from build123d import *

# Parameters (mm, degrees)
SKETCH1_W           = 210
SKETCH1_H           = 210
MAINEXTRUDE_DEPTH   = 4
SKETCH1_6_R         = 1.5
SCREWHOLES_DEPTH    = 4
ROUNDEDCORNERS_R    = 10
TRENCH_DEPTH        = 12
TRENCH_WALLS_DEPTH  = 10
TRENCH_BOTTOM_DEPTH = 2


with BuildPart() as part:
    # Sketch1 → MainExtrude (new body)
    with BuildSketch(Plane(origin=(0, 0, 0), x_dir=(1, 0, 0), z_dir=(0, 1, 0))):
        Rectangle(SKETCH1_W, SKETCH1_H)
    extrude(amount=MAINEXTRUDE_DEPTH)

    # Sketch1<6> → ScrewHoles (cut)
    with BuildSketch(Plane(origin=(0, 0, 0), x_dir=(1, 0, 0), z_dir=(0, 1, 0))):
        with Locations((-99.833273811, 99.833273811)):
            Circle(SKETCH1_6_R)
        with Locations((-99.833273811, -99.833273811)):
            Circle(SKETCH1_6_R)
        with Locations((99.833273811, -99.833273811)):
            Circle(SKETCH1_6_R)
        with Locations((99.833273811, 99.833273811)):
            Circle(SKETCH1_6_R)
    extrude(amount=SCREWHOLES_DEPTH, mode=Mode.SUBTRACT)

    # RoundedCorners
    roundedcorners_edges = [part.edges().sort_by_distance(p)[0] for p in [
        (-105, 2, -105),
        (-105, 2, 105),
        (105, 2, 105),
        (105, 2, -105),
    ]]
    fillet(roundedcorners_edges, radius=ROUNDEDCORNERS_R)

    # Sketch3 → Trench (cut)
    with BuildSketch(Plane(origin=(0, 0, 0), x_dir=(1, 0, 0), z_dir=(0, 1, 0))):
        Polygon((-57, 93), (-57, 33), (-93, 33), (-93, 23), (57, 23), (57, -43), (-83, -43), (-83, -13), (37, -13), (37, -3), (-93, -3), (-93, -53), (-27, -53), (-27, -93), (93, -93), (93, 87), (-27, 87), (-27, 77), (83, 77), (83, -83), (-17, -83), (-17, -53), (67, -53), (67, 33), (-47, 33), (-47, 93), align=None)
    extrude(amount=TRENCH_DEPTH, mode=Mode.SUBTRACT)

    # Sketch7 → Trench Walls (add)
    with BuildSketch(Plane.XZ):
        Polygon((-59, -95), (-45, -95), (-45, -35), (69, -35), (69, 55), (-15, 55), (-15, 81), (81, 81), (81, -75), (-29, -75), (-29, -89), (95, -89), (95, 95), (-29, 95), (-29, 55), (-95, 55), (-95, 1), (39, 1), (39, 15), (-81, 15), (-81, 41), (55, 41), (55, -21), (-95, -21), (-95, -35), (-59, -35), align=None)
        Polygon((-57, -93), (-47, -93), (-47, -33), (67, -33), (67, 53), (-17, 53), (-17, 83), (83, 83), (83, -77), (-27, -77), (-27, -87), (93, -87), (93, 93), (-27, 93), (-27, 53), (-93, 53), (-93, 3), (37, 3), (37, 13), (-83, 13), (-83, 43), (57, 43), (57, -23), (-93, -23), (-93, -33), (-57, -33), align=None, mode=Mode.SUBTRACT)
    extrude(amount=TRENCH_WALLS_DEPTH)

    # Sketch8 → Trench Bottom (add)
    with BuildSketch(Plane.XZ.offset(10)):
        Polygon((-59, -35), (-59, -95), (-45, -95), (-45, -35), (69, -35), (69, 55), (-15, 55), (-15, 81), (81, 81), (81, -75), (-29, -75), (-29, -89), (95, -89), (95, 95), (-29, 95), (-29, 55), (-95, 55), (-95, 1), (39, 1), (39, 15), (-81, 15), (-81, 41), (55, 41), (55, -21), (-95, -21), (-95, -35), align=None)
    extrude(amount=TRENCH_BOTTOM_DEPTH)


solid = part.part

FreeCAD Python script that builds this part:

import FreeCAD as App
import Part
import Sketcher

V = App.Vector
Q = App.Units.Quantity


def edges_at(feature, points):
    """Names of the edges that pass closest to the given points."""
    edges = feature.Shape.Edges
    near = lambda p: min(range(len(edges)), key=lambda i: edges[i].distToShape(Part.Vertex(*p))[0])
    return sorted({f"Edge{near(p) + 1}" for p in points})


def add_polygon(sketch, points):
    """Adds a closed chain of lines whose ends are joined by coincident constraints."""
    first, n = sketch.GeometryCount, len(points)
    for a, b in zip(points, points[1:] + points[:1]):
        sketch.addGeometry(Part.LineSegment(App.Vector(*a, 0), App.Vector(*b, 0)), False)
    for i in range(n):
        sketch.addConstraint(Sketcher.Constraint("Coincident", first + i, 2, first + (i + 1) % n, 1))

doc = App.newDocument("Part")
body = doc.addObject("PartDesign::Body", "Body")

# Sketch on XZ plane
sketch1 = body.newObject("Sketcher::SketchObject", "Sketch")
sketch1.AttachmentSupport = (doc.getObject("XZ_Plane"), [""])
sketch1.MapMode = "FlatFace"
add_polygon(sketch1, [(-105, -105), (-105, 105), (105, 105), (105, -105)])  # lines 0-3
sketch1.addConstraint(Sketcher.Constraint("Vertical", 0))
sketch1.addConstraint(Sketcher.Constraint("Horizontal", 1))
sketch1.addConstraint(Sketcher.Constraint("Vertical", 2))
sketch1.addConstraint(Sketcher.Constraint("Horizontal", 3))
sketch1.addConstraint(Sketcher.Constraint("Symmetric", 0, 2, 2, 2, -1, 1))
sketch1.addConstraint(Sketcher.Constraint("Equal", 3, 0))
sketch1.addConstraint(Sketcher.Constraint("DistanceX", 1, 1, 1, 2, Q("210 mm")))
pad1 = body.newObject("PartDesign::Pad", "Pad")
pad1.Profile = sketch1
pad1.Length = 4
pad1.Reversed = True

# Sketch on XZ plane
sketch2 = body.newObject("Sketcher::SketchObject", "Sketch001")
sketch2.AttachmentSupport = (doc.getObject("XZ_Plane"), [""])
sketch2.MapMode = "FlatFace"
sketch2.addGeometry(Part.Circle(V(-99.833274, -99.833274, 0), V(0, 0, 1), 1.5), False)
sketch2.addGeometry(Part.Circle(V(-99.833274, 99.833274, 0), V(0, 0, 1), 1.5), False)
sketch2.addGeometry(Part.Circle(V(99.833274, 99.833274, 0), V(0, 0, 1), 1.5), False)
sketch2.addGeometry(Part.Circle(V(99.833274, -99.833274, 0), V(0, 0, 1), 1.5), False)
sketch2.addConstraint(Sketcher.Constraint("Equal", 0, 1))
sketch2.addConstraint(Sketcher.Constraint("Equal", 1, 2))
sketch2.addConstraint(Sketcher.Constraint("Equal", 2, 3))
sketch2.addConstraint(Sketcher.Constraint("Symmetric", 0, 3, 2, 3, -1, 1))
sketch2.addConstraint(Sketcher.Constraint("Symmetric", 1, 3, 3, 3, -1, 1))
sketch2.addConstraint(Sketcher.Constraint("Symmetric", 1, 3, 2, 3, -2))
sketch2.addConstraint(Sketcher.Constraint("Diameter", 0, Q("3 mm")))
sketch2.addConstraint(Sketcher.Constraint("DistanceX", 0, 3, -1, 1, Q("99.833274 mm")))
sketch2.addConstraint(Sketcher.Constraint("DistanceY", 0, 3, -1, 1, Q("99.833274 mm")))
pocket1 = body.newObject("PartDesign::Pocket", "Pocket")
pocket1.Profile = sketch2
pocket1.Length = 4
doc.recompute()

fillet = body.newObject("PartDesign::Fillet", "Fillet")
fillet.Base = (pocket1, edges_at(pocket1, [
    (-105, 2, -105),
    (-105, 2, 105),
    (105, 2, 105),
    (105, 2, -105),
]))
fillet.Radius = 10

# Sketch on XZ plane
sketch3 = body.newObject("Sketcher::SketchObject", "Sketch002")
sketch3.AttachmentSupport = (doc.getObject("XZ_Plane"), [""])
sketch3.MapMode = "FlatFace"
add_polygon(sketch3, [(-57, -93), (-57, -33), (-93, -33), (-93, -23), (57, -23), (57, 43), (-83, 43), (-83, 13), (37, 13), (37, 3), (-93, 3), (-93, 53), (-27, 53), (-27, 93), (93, 93), (93, -87), (-27, -87), (-27, -77), (83, -77), (83, 83), (-17, 83), (-17, 53), (67, 53), (67, -33), (-47, -33), (-47, -93)])  # lines 0-25
sketch3.addConstraint(Sketcher.Constraint("Vertical", 0))
sketch3.addConstraint(Sketcher.Constraint("Horizontal", 1))
sketch3.addConstraint(Sketcher.Constraint("Vertical", 2))
sketch3.addConstraint(Sketcher.Constraint("Horizontal", 3))
sketch3.addConstraint(Sketcher.Constraint("Vertical", 4))
sketch3.addConstraint(Sketcher.Constraint("Horizontal", 5))
sketch3.addConstraint(Sketcher.Constraint("Vertical", 6))
sketch3.addConstraint(Sketcher.Constraint("Horizontal", 7))
sketch3.addConstraint(Sketcher.Constraint("Vertical", 8))
sketch3.addConstraint(Sketcher.Constraint("Horizontal", 9))
sketch3.addConstraint(Sketcher.Constraint("Vertical", 10))
sketch3.addConstraint(Sketcher.Constraint("Horizontal", 11))
sketch3.addConstraint(Sketcher.Constraint("Vertical", 12))
sketch3.addConstraint(Sketcher.Constraint("Horizontal", 13))
sketch3.addConstraint(Sketcher.Constraint("Vertical", 14))
sketch3.addConstraint(Sketcher.Constraint("Horizontal", 15))
sketch3.addConstraint(Sketcher.Constraint("Vertical", 16))
sketch3.addConstraint(Sketcher.Constraint("Horizontal", 17))
sketch3.addConstraint(Sketcher.Constraint("Vertical", 18))
sketch3.addConstraint(Sketcher.Constraint("Horizontal", 19))
sketch3.addConstraint(Sketcher.Constraint("Vertical", 20))
sketch3.addConstraint(Sketcher.Constraint("Horizontal", 21))
sketch3.addConstraint(Sketcher.Constraint("Vertical", 22))
sketch3.addConstraint(Sketcher.Constraint("Horizontal", 23))
sketch3.addConstraint(Sketcher.Constraint("Vertical", 24))
sketch3.addConstraint(Sketcher.Constraint("Horizontal", 25))
sketch3.addConstraint(Sketcher.Constraint("Horizontal", 11, 2, 20, 2))
sketch3.addConstraint(Sketcher.Constraint("Horizontal", 1, 2, 22, 2))
sketch3.addConstraint(Sketcher.Constraint("Vertical", 2, 2, 9, 2))
sketch3.addConstraint(Sketcher.Constraint("Vertical", 12, 2, 15, 2))
sketch3.addConstraint(Sketcher.Constraint("Equal", 7, 13))
sketch3.addConstraint(Sketcher.Constraint("Equal", 25, 2))
sketch3.addConstraint(Sketcher.Constraint("Equal", 11, 4))
sketch3.addConstraint(Sketcher.Constraint("Equal", 2, 8))
sketch3.addConstraint(Sketcher.Constraint("Equal", 8, 16))
sketch3.addConstraint(Sketcher.Constraint("Equal", 6, 20))
sketch3.addConstraint(Sketcher.Constraint("DistanceX", 1, 2, 1, 1, Q("36 mm")))
sketch3.addConstraint(Sketcher.Constraint("DistanceX", 3, 1, 3, 2, Q("150 mm")))
sketch3.addConstraint(Sketcher.Constraint("DistanceX", 5, 2, 5, 1, Q("140 mm")))
sketch3.addConstraint(Sketcher.Constraint("DistanceX", 7, 1, 7, 2, Q("120 mm")))
sketch3.addConstraint(Sketcher.Constraint("DistanceX", 11, 1, 11, 2, Q("66 mm")))
sketch3.addConstraint(Sketcher.Constraint("DistanceX", 17, 1, 17, 2, Q("110 mm")))
sketch3.addConstraint(Sketcher.Constraint("DistanceX", 19, 2, 19, 1, Q("100 mm")))
sketch3.addConstraint(Sketcher.Constraint("DistanceX", 21, 1, 21, 2, Q("84 mm")))
sketch3.addConstraint(Sketcher.Constraint("DistanceX", 23, 2, 23, 1, Q("114 mm")))
sketch3.addConstraint(Sketcher.Constraint("DistanceY", 0, 1, 0, 2, Q("60 mm")))
sketch3.addConstraint(Sketcher.Constraint("DistanceY", 6, 2, 6, 1, Q("30 mm")))
sketch3.addConstraint(Sketcher.Constraint("DistanceY", 10, 1, 10, 2, Q("50 mm")))
sketch3.addConstraint(Sketcher.Constraint("DistanceY", 12, 1, 12, 2, Q("40 mm")))
sketch3.addConstraint(Sketcher.Constraint("DistanceY", 14, 2, 14, 1, Q("180 mm")))
sketch3.addConstraint(Sketcher.Constraint("DistanceX", 0, 2, -1, 1, Q("57 mm")))
sketch3.addConstraint(Sketcher.Constraint("DistanceY", 0, 2, -1, 1, Q("33 mm")))
pocket2 = body.newObject("PartDesign::Pocket", "Pocket001")
pocket2.Profile = sketch3
pocket2.Length = 12

# Sketch on XZ plane
sketch4 = body.newObject("Sketcher::SketchObject", "Sketch003")
sketch4.AttachmentSupport = (doc.getObject("XZ_Plane"), [""])
sketch4.MapMode = "FlatFace"
add_polygon(sketch4, [(-59, -95), (-45, -95), (-45, -35), (69, -35), (69, 55), (-15, 55), (-15, 81), (81, 81), (81, -75), (-29, -75), (-29, -89), (95, -89), (95, 95), (-29, 95), (-29, 55), (-95, 55), (-95, 1), (39, 1), (39, 15), (-81, 15), (-81, 41), (55, 41), (55, -21), (-95, -21), (-95, -35), (-59, -35)])  # lines 0-25
add_polygon(sketch4, [(-47, -93), (-57, -93), (-57, -33), (-93, -33), (-93, -23), (57, -23), (57, 43), (-83, 43), (-83, 13), (37, 13), (37, 3), (-93, 3), (-93, 53), (-27, 53), (-27, 93), (93, 93), (93, -87), (-27, -87), (-27, -77), (83, -77), (83, 83), (-17, 83), (-17, 53), (67, 53), (67, -33), (-47, -33)])  # lines 26-51
sketch4.addConstraint(Sketcher.Constraint("Horizontal", 0))
sketch4.addConstraint(Sketcher.Constraint("Vertical", 1))
sketch4.addConstraint(Sketcher.Constraint("Horizontal", 2))
sketch4.addConstraint(Sketcher.Constraint("Vertical", 3))
sketch4.addConstraint(Sketcher.Constraint("Horizontal", 4))
sketch4.addConstraint(Sketcher.Constraint("Vertical", 5))
sketch4.addConstraint(Sketcher.Constraint("Horizontal", 6))
sketch4.addConstraint(Sketcher.Constraint("Vertical", 7))
sketch4.addConstraint(Sketcher.Constraint("Horizontal", 8))
sketch4.addConstraint(Sketcher.Constraint("Vertical", 9))
sketch4.addConstraint(Sketcher.Constraint("Horizontal", 10))
sketch4.addConstraint(Sketcher.Constraint("Vertical", 11))
sketch4.addConstraint(Sketcher.Constraint("Horizontal", 12))
sketch4.addConstraint(Sketcher.Constraint("Vertical", 13))
sketch4.addConstraint(Sketcher.Constraint("Horizontal", 14))
sketch4.addConstraint(Sketcher.Constraint("Vertical", 15))
sketch4.addConstraint(Sketcher.Constraint("Horizontal", 16))
sketch4.addConstraint(Sketcher.Constraint("Vertical", 17))
sketch4.addConstraint(Sketcher.Constraint("Horizontal", 18))
sketch4.addConstraint(Sketcher.Constraint("Vertical", 19))
sketch4.addConstraint(Sketcher.Constraint("Horizontal", 20))
sketch4.addConstraint(Sketcher.Constraint("Vertical", 21))
sketch4.addConstraint(Sketcher.Constraint("Horizontal", 22))
sketch4.addConstraint(Sketcher.Constraint("Vertical", 23))
sketch4.addConstraint(Sketcher.Constraint("Horizontal", 24))
sketch4.addConstraint(Sketcher.Constraint("Vertical", 25))
sketch4.addConstraint(Sketcher.Constraint("Horizontal", 26))
sketch4.addConstraint(Sketcher.Constraint("Vertical", 27))
sketch4.addConstraint(Sketcher.Constraint("Horizontal", 28))
sketch4.addConstraint(Sketcher.Constraint("Vertical", 29))
sketch4.addConstraint(Sketcher.Constraint("Horizontal", 30))
sketch4.addConstraint(Sketcher.Constraint("Vertical", 31))
sketch4.addConstraint(Sketcher.Constraint("Horizontal", 32))
sketch4.addConstraint(Sketcher.Constraint("Vertical", 33))
sketch4.addConstraint(Sketcher.Constraint("Horizontal", 34))
sketch4.addConstraint(Sketcher.Constraint("Vertical", 35))
sketch4.addConstraint(Sketcher.Constraint("Horizontal", 36))
sketch4.addConstraint(Sketcher.Constraint("Vertical", 37))
sketch4.addConstraint(Sketcher.Constraint("Horizontal", 38))
sketch4.addConstraint(Sketcher.Constraint("Vertical", 39))
sketch4.addConstraint(Sketcher.Constraint("Horizontal", 40))
sketch4.addConstraint(Sketcher.Constraint("Vertical", 41))
sketch4.addConstraint(Sketcher.Constraint("Horizontal", 42))
sketch4.addConstraint(Sketcher.Constraint("Vertical", 43))
sketch4.addConstraint(Sketcher.Constraint("Horizontal", 44))
sketch4.addConstraint(Sketcher.Constraint("Vertical", 45))
sketch4.addConstraint(Sketcher.Constraint("Horizontal", 46))
sketch4.addConstraint(Sketcher.Constraint("Vertical", 47))
sketch4.addConstraint(Sketcher.Constraint("Horizontal", 48))
sketch4.addConstraint(Sketcher.Constraint("Vertical", 49))
sketch4.addConstraint(Sketcher.Constraint("Horizontal", 50))
sketch4.addConstraint(Sketcher.Constraint("Vertical", 51))
sketch4.addConstraint(Sketcher.Constraint("Horizontal", 4, 2, 13, 2))
sketch4.addConstraint(Sketcher.Constraint("Horizontal", 2, 2, 23, 2))
sketch4.addConstraint(Sketcher.Constraint("Horizontal", 38, 2, 47, 2))
sketch4.addConstraint(Sketcher.Constraint("Horizontal", 28, 2, 49, 2))
sketch4.addConstraint(Sketcher.Constraint("Vertical", 9, 2, 12, 2))
sketch4.addConstraint(Sketcher.Constraint("Vertical", 15, 2, 22, 2))
sketch4.addConstraint(Sketcher.Constraint("Vertical", 29, 2, 36, 2))
sketch4.addConstraint(Sketcher.Constraint("Vertical", 39, 2, 42, 2))
sketch4.addConstraint(Sketcher.Constraint("Equal", 24, 28))
sketch4.addConstraint(Sketcher.Constraint("Equal", 22, 30))
sketch4.addConstraint(Sketcher.Constraint("Equal", 18, 34))
sketch4.addConstraint(Sketcher.Constraint("Equal", 14, 38))
sketch4.addConstraint(Sketcher.Constraint("Equal", 34, 40))
sketch4.addConstraint(Sketcher.Constraint("Equal", 8, 44))
sketch4.addConstraint(Sketcher.Constraint("Equal", 4, 48))
sketch4.addConstraint(Sketcher.Constraint("Equal", 2, 50))
sketch4.addConstraint(Sketcher.Constraint("Equal", 0, 9))
sketch4.addConstraint(Sketcher.Constraint("Equal", 9, 17))
sketch4.addConstraint(Sketcher.Constraint("Equal", 5, 19))
sketch4.addConstraint(Sketcher.Constraint("Equal", 17, 23))
sketch4.addConstraint(Sketcher.Constraint("Equal", 25, 27))
sketch4.addConstraint(Sketcher.Constraint("Equal", 26, 29))
sketch4.addConstraint(Sketcher.Constraint("Equal", 38, 31))
sketch4.addConstraint(Sketcher.Constraint("Equal", 29, 35))
sketch4.addConstraint(Sketcher.Constraint("Equal", 13, 39))
sketch4.addConstraint(Sketcher.Constraint("Equal", 35, 43))
sketch4.addConstraint(Sketcher.Constraint("Equal", 33, 47))
sketch4.addConstraint(Sketcher.Constraint("DistanceX", 0, 1, 0, 2, Q("14 mm")))
sketch4.addConstraint(Sketcher.Constraint("DistanceX", 2, 1, 2, 2, Q("114 mm")))
sketch4.addConstraint(Sketcher.Constraint("DistanceX", 4, 2, 4, 1, Q("84 mm")))
sketch4.addConstraint(Sketcher.Constraint("DistanceX", 6, 1, 6, 2, Q("96 mm")))
sketch4.addConstraint(Sketcher.Constraint("DistanceX", 8, 2, 8, 1, Q("110 mm")))
sketch4.addConstraint(Sketcher.Constraint("DistanceX", 10, 1, 10, 2, Q("124 mm")))
sketch4.addConstraint(Sketcher.Constraint("DistanceX", 14, 2, 14, 1, Q("66 mm")))
sketch4.addConstraint(Sketcher.Constraint("DistanceX", 16, 1, 16, 2, Q("134 mm")))
sketch4.addConstraint(Sketcher.Constraint("DistanceX", 18, 2, 18, 1, Q("120 mm")))
sketch4.addConstraint(Sketcher.Constraint("DistanceX", 20, 1, 20, 2, Q("136 mm")))
sketch4.addConstraint(Sketcher.Constraint("DistanceX", 26, 2, 26, 1, Q("10 mm")))
sketch4.addConstraint(Sketcher.Constraint("DistanceX", 32, 2, 32, 1, Q("140 mm")))
sketch4.addConstraint(Sketcher.Constraint("DistanceY", 1, 1, 1, 2, Q("60 mm")))
sketch4.addConstraint(Sketcher.Constraint("DistanceY", 3, 1, 3, 2, Q("90 mm")))
sketch4.addConstraint(Sketcher.Constraint("DistanceY", 5, 1, 5, 2, Q("26 mm")))
sketch4.addConstraint(Sketcher.Constraint("DistanceY", 7, 2, 7, 1, Q("156 mm")))
sketch4.addConstraint(Sketcher.Constraint("DistanceY", 11, 1, 11, 2, Q("184 mm")))
sketch4.addConstraint(Sketcher.Constraint("DistanceY", 15, 2, 15, 1, Q("54 mm")))
sketch4.addConstraint(Sketcher.Constraint("DistanceY", 33, 2, 33, 1, Q("30 mm")))
sketch4.addConstraint(Sketcher.Constraint("DistanceY", 37, 1, 37, 2, Q("50 mm")))
sketch4.addConstraint(Sketcher.Constraint("DistanceY", 41, 2, 41, 1, Q("180 mm")))
sketch4.addConstraint(Sketcher.Constraint("DistanceX", 0, 2, -1, 1, Q("45 mm")))
sketch4.addConstraint(Sketcher.Constraint("DistanceY", 0, 2, -1, 1, Q("95 mm")))
sketch4.addConstraint(Sketcher.Constraint("DistanceX", 26, 2, -1, 1, Q("57 mm")))
sketch4.addConstraint(Sketcher.Constraint("DistanceY", 26, 2, -1, 1, Q("93 mm")))
pad2 = body.newObject("PartDesign::Pad", "Pad001")
pad2.Profile = sketch4
pad2.Length = 10

# Sketch on XZ plane
sketch5 = body.newObject("Sketcher::SketchObject", "Sketch004")
sketch5.AttachmentSupport = (doc.getObject("XZ_Plane"), [""])
sketch5.MapMode = "FlatFace"
sketch5.AttachmentOffset = App.Placement(V(0, 0, 10), App.Rotation())
add_polygon(sketch5, [(-59, -35), (-59, -95), (-45, -95), (-45, -35), (69, -35), (69, 55), (-15, 55), (-15, 81), (81, 81), (81, -75), (-29, -75), (-29, -89), (95, -89), (95, 95), (-29, 95), (-29, 55), (-95, 55), (-95, 1), (39, 1), (39, 15), (-81, 15), (-81, 41), (55, 41), (55, -21), (-95, -21), (-95, -35)])  # lines 0-25
sketch5.addConstraint(Sketcher.Constraint("Vertical", 0))
sketch5.addConstraint(Sketcher.Constraint("Horizontal", 1))
sketch5.addConstraint(Sketcher.Constraint("Vertical", 2))
sketch5.addConstraint(Sketcher.Constraint("Horizontal", 3))
sketch5.addConstraint(Sketcher.Constraint("Vertical", 4))
sketch5.addConstraint(Sketcher.Constraint("Horizontal", 5))
sketch5.addConstraint(Sketcher.Constraint("Vertical", 6))
sketch5.addConstraint(Sketcher.Constraint("Horizontal", 7))
sketch5.addConstraint(Sketcher.Constraint("Vertical", 8))
sketch5.addConstraint(Sketcher.Constraint("Horizontal", 9))
sketch5.addConstraint(Sketcher.Constraint("Vertical", 10))
sketch5.addConstraint(Sketcher.Constraint("Horizontal", 11))
sketch5.addConstraint(Sketcher.Constraint("Vertical", 12))
sketch5.addConstraint(Sketcher.Constraint("Horizontal", 13))
sketch5.addConstraint(Sketcher.Constraint("Vertical", 14))
sketch5.addConstraint(Sketcher.Constraint("Horizontal", 15))
sketch5.addConstraint(Sketcher.Constraint("Vertical", 16))
sketch5.addConstraint(Sketcher.Constraint("Horizontal", 17))
sketch5.addConstraint(Sketcher.Constraint("Vertical", 18))
sketch5.addConstraint(Sketcher.Constraint("Horizontal", 19))
sketch5.addConstraint(Sketcher.Constraint("Vertical", 20))
sketch5.addConstraint(Sketcher.Constraint("Horizontal", 21))
sketch5.addConstraint(Sketcher.Constraint("Vertical", 22))
sketch5.addConstraint(Sketcher.Constraint("Horizontal", 23))
sketch5.addConstraint(Sketcher.Constraint("Vertical", 24))
sketch5.addConstraint(Sketcher.Constraint("Horizontal", 25))
sketch5.addConstraint(Sketcher.Constraint("Horizontal", 5, 2, 14, 2))
sketch5.addConstraint(Sketcher.Constraint("Horizontal", 3, 2, 24, 2))
sketch5.addConstraint(Sketcher.Constraint("Vertical", 10, 2, 13, 2))
sketch5.addConstraint(Sketcher.Constraint("Vertical", 16, 2, 23, 2))
sketch5.addConstraint(Sketcher.Constraint("Equal", 1, 10))
sketch5.addConstraint(Sketcher.Constraint("Equal", 10, 18))
sketch5.addConstraint(Sketcher.Constraint("Equal", 6, 20))
sketch5.addConstraint(Sketcher.Constraint("Equal", 18, 24))
sketch5.addConstraint(Sketcher.Constraint("DistanceX", 1, 1, 1, 2, Q("14 mm")))
sketch5.addConstraint(Sketcher.Constraint("DistanceX", 3, 1, 3, 2, Q("114 mm")))
sketch5.addConstraint(Sketcher.Constraint("DistanceX", 5, 2, 5, 1, Q("84 mm")))
sketch5.addConstraint(Sketcher.Constraint("DistanceX", 7, 1, 7, 2, Q("96 mm")))
sketch5.addConstraint(Sketcher.Constraint("DistanceX", 9, 2, 9, 1, Q("110 mm")))
sketch5.addConstraint(Sketcher.Constraint("DistanceX", 11, 1, 11, 2, Q("124 mm")))
sketch5.addConstraint(Sketcher.Constraint("DistanceX", 15, 2, 15, 1, Q("66 mm")))
sketch5.addConstraint(Sketcher.Constraint("DistanceX", 17, 1, 17, 2, Q("134 mm")))
sketch5.addConstraint(Sketcher.Constraint("DistanceX", 19, 2, 19, 1, Q("120 mm")))
sketch5.addConstraint(Sketcher.Constraint("DistanceX", 21, 1, 21, 2, Q("136 mm")))
sketch5.addConstraint(Sketcher.Constraint("DistanceY", 0, 2, 0, 1, Q("60 mm")))
sketch5.addConstraint(Sketcher.Constraint("DistanceY", 4, 1, 4, 2, Q("90 mm")))
sketch5.addConstraint(Sketcher.Constraint("DistanceY", 6, 1, 6, 2, Q("26 mm")))
sketch5.addConstraint(Sketcher.Constraint("DistanceY", 8, 2, 8, 1, Q("156 mm")))
sketch5.addConstraint(Sketcher.Constraint("DistanceY", 12, 1, 12, 2, Q("184 mm")))
sketch5.addConstraint(Sketcher.Constraint("DistanceY", 16, 2, 16, 1, Q("54 mm")))
sketch5.addConstraint(Sketcher.Constraint("DistanceX", 0, 2, -1, 1, Q("59 mm")))
sketch5.addConstraint(Sketcher.Constraint("DistanceY", 0, 2, -1, 1, Q("95 mm")))
pad3 = body.newObject("PartDesign::Pad", "Pad002")
pad3.Profile = sketch5
pad3.Length = 2

doc.recompute()
